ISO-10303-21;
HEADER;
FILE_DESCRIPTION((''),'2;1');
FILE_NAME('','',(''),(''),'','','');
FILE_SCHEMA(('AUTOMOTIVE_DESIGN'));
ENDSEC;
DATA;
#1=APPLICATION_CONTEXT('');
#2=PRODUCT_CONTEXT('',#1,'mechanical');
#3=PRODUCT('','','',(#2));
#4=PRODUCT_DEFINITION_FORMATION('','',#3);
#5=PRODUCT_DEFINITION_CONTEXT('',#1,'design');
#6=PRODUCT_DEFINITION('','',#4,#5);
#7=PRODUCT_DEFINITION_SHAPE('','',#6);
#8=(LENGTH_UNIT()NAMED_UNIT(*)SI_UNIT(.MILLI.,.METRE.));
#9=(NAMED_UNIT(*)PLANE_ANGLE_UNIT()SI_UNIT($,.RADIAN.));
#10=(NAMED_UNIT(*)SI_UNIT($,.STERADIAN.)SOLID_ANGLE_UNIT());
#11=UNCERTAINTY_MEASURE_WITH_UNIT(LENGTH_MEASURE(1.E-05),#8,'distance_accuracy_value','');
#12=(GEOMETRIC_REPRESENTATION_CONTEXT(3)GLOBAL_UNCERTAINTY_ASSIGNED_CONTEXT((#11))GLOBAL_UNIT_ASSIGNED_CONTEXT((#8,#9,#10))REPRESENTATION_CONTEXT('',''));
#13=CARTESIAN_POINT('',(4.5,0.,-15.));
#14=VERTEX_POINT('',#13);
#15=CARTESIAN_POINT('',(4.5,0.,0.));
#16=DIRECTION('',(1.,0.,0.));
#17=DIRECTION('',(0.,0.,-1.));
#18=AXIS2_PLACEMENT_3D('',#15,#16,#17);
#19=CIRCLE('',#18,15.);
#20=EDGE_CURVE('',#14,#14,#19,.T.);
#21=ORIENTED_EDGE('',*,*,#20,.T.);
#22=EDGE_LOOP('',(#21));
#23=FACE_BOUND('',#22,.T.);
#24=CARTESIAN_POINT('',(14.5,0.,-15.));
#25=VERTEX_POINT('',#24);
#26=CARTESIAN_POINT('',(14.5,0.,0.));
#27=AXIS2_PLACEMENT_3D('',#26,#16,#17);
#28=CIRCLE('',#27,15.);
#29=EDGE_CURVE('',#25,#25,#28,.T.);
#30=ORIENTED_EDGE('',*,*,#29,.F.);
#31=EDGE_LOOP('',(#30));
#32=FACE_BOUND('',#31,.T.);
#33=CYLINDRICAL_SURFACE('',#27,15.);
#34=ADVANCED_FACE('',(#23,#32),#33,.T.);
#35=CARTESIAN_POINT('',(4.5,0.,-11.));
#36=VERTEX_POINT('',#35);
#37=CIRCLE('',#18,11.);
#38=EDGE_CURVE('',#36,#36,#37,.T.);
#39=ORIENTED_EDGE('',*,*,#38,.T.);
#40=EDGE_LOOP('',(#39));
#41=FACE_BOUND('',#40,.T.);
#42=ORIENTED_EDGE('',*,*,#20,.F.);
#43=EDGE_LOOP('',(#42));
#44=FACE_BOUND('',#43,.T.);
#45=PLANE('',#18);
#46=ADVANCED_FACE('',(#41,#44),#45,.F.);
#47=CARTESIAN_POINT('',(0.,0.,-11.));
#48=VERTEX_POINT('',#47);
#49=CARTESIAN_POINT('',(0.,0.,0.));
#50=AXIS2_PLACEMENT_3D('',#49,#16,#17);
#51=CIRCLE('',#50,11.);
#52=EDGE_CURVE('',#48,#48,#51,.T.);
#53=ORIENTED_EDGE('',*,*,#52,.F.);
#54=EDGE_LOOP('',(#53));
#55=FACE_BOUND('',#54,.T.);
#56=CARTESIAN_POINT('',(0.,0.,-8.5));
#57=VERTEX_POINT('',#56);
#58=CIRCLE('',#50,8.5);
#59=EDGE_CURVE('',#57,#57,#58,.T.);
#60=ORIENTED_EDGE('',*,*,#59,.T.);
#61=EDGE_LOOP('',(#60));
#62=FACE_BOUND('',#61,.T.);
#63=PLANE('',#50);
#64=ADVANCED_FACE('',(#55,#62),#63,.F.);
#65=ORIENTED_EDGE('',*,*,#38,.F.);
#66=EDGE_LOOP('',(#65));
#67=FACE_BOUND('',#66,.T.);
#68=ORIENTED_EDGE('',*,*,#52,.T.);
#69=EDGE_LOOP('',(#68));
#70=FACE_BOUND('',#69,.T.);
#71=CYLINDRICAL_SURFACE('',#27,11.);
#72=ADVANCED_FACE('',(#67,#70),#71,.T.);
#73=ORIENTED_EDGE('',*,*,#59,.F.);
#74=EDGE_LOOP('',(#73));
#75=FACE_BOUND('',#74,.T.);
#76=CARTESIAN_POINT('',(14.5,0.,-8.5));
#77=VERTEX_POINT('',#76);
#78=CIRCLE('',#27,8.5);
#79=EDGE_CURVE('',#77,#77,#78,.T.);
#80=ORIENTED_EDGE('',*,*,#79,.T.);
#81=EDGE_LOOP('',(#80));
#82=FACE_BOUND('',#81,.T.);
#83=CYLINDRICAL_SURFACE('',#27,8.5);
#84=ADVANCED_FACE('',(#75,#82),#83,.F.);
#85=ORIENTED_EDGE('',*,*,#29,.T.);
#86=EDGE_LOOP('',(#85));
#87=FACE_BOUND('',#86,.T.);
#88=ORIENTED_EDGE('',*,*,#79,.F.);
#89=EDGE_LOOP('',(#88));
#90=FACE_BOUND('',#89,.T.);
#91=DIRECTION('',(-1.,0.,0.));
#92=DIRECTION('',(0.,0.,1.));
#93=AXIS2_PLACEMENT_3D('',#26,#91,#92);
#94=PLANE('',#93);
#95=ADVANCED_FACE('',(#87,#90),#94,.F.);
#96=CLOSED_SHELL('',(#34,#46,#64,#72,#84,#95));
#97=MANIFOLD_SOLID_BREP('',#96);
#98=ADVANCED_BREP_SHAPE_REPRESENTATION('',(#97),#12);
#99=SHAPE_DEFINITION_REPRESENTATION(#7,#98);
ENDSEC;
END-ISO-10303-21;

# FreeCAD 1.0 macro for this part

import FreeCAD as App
import Part
import Sketcher
Q = App.Units.Quantity


def add_polygon(sketch, points):
    """Adds a closed chain of lines whose ends are joined by coincident constraints."""
    first, n = sketch.GeometryCount, len(points)
    for a, b in zip(points, points[1:] + points[:1]):
        sketch.addGeometry(Part.LineSegment(App.Vector(*a, 0), App.Vector(*b, 0)), False)
    for i in range(n):
        sketch.addConstraint(Sketcher.Constraint("Coincident", first + i, 2, first + (i + 1) % n, 1))

doc = App.newDocument("Part")
params = doc.addObject("Spreadsheet::Sheet", "Params")
for row, (alias, value) in enumerate([
    ("sketch1_width", "10 mm"),
    ("sketch1_height", "4 mm"),
    ("sketch1_width2", "14.5 mm"),
    ("sketch1_height2", "2.5 mm"),
    ("revolution_angle", "360 deg"),
], start=1):
    params.set(f"A{row}", alias)
    params.set(f"B{row}", "=" + value)
    params.setAlias(f"B{row}", alias)

body = doc.addObject("PartDesign::Body", "Body")

sketch1 = body.newObject("Sketcher::SketchObject", "Sketch")
sketch1.AttachmentSupport = (doc.getObject("XY_Plane"), [""])
sketch1.MapMode = "FlatFace"
add_polygon(sketch1, [(0, 11), (0, 8.5), (14.5, 8.5), (14.5, 15), (4.5, 15), (4.5, 11)])
sketch1.addConstraint(Sketcher.Constraint("Vertical", 0))
sketch1.addConstraint(Sketcher.Constraint("Horizontal", 1))
sketch1.addConstraint(Sketcher.Constraint("Vertical", 2))
sketch1.addConstraint(Sketcher.Constraint("Horizontal", 3))
sketch1.addConstraint(Sketcher.Constraint("Vertical", 4))
sketch1.addConstraint(Sketcher.Constraint("Horizontal", 5))
sketch1.addConstraint(Sketcher.Constraint("PointOnObject", 0, 2, -2))
sketch1.addConstraint(Sketcher.Constraint("DistanceX", 3, 2, 3, 1, Q("10 mm")))
sketch1.addConstraint(Sketcher.Constraint("DistanceY", 4, 2, 4, 1, Q("4 mm")))
sketch1.addConstraint(Sketcher.Constraint("DistanceX", 1, 1, 1, 2, Q("14.5 mm")))
sketch1.addConstraint(Sketcher.Constraint("DistanceY", 0, 2, 0, 1, Q("2.5 mm")))
sketch1.addConstraint(Sketcher.Constraint("DistanceY", -1, 1, 2, 2, Q("15 mm")))
sketch1.setExpression("Constraints[13]", "Params.sketch1_width")
sketch1.setExpression("Constraints[14]", "Params.sketch1_height")
sketch1.setExpression("Constraints[15]", "Params.sketch1_width2")
sketch1.setExpression("Constraints[16]", "Params.sketch1_height2")
revolution = body.newObject("PartDesign::Revolution", "Revolution")
revolution.Profile = sketch1
revolution.ReferenceAxis = (sketch1, ["H_Axis"])
revolution.setExpression("Angle", "Params.revolution_angle")

doc.recompute()
